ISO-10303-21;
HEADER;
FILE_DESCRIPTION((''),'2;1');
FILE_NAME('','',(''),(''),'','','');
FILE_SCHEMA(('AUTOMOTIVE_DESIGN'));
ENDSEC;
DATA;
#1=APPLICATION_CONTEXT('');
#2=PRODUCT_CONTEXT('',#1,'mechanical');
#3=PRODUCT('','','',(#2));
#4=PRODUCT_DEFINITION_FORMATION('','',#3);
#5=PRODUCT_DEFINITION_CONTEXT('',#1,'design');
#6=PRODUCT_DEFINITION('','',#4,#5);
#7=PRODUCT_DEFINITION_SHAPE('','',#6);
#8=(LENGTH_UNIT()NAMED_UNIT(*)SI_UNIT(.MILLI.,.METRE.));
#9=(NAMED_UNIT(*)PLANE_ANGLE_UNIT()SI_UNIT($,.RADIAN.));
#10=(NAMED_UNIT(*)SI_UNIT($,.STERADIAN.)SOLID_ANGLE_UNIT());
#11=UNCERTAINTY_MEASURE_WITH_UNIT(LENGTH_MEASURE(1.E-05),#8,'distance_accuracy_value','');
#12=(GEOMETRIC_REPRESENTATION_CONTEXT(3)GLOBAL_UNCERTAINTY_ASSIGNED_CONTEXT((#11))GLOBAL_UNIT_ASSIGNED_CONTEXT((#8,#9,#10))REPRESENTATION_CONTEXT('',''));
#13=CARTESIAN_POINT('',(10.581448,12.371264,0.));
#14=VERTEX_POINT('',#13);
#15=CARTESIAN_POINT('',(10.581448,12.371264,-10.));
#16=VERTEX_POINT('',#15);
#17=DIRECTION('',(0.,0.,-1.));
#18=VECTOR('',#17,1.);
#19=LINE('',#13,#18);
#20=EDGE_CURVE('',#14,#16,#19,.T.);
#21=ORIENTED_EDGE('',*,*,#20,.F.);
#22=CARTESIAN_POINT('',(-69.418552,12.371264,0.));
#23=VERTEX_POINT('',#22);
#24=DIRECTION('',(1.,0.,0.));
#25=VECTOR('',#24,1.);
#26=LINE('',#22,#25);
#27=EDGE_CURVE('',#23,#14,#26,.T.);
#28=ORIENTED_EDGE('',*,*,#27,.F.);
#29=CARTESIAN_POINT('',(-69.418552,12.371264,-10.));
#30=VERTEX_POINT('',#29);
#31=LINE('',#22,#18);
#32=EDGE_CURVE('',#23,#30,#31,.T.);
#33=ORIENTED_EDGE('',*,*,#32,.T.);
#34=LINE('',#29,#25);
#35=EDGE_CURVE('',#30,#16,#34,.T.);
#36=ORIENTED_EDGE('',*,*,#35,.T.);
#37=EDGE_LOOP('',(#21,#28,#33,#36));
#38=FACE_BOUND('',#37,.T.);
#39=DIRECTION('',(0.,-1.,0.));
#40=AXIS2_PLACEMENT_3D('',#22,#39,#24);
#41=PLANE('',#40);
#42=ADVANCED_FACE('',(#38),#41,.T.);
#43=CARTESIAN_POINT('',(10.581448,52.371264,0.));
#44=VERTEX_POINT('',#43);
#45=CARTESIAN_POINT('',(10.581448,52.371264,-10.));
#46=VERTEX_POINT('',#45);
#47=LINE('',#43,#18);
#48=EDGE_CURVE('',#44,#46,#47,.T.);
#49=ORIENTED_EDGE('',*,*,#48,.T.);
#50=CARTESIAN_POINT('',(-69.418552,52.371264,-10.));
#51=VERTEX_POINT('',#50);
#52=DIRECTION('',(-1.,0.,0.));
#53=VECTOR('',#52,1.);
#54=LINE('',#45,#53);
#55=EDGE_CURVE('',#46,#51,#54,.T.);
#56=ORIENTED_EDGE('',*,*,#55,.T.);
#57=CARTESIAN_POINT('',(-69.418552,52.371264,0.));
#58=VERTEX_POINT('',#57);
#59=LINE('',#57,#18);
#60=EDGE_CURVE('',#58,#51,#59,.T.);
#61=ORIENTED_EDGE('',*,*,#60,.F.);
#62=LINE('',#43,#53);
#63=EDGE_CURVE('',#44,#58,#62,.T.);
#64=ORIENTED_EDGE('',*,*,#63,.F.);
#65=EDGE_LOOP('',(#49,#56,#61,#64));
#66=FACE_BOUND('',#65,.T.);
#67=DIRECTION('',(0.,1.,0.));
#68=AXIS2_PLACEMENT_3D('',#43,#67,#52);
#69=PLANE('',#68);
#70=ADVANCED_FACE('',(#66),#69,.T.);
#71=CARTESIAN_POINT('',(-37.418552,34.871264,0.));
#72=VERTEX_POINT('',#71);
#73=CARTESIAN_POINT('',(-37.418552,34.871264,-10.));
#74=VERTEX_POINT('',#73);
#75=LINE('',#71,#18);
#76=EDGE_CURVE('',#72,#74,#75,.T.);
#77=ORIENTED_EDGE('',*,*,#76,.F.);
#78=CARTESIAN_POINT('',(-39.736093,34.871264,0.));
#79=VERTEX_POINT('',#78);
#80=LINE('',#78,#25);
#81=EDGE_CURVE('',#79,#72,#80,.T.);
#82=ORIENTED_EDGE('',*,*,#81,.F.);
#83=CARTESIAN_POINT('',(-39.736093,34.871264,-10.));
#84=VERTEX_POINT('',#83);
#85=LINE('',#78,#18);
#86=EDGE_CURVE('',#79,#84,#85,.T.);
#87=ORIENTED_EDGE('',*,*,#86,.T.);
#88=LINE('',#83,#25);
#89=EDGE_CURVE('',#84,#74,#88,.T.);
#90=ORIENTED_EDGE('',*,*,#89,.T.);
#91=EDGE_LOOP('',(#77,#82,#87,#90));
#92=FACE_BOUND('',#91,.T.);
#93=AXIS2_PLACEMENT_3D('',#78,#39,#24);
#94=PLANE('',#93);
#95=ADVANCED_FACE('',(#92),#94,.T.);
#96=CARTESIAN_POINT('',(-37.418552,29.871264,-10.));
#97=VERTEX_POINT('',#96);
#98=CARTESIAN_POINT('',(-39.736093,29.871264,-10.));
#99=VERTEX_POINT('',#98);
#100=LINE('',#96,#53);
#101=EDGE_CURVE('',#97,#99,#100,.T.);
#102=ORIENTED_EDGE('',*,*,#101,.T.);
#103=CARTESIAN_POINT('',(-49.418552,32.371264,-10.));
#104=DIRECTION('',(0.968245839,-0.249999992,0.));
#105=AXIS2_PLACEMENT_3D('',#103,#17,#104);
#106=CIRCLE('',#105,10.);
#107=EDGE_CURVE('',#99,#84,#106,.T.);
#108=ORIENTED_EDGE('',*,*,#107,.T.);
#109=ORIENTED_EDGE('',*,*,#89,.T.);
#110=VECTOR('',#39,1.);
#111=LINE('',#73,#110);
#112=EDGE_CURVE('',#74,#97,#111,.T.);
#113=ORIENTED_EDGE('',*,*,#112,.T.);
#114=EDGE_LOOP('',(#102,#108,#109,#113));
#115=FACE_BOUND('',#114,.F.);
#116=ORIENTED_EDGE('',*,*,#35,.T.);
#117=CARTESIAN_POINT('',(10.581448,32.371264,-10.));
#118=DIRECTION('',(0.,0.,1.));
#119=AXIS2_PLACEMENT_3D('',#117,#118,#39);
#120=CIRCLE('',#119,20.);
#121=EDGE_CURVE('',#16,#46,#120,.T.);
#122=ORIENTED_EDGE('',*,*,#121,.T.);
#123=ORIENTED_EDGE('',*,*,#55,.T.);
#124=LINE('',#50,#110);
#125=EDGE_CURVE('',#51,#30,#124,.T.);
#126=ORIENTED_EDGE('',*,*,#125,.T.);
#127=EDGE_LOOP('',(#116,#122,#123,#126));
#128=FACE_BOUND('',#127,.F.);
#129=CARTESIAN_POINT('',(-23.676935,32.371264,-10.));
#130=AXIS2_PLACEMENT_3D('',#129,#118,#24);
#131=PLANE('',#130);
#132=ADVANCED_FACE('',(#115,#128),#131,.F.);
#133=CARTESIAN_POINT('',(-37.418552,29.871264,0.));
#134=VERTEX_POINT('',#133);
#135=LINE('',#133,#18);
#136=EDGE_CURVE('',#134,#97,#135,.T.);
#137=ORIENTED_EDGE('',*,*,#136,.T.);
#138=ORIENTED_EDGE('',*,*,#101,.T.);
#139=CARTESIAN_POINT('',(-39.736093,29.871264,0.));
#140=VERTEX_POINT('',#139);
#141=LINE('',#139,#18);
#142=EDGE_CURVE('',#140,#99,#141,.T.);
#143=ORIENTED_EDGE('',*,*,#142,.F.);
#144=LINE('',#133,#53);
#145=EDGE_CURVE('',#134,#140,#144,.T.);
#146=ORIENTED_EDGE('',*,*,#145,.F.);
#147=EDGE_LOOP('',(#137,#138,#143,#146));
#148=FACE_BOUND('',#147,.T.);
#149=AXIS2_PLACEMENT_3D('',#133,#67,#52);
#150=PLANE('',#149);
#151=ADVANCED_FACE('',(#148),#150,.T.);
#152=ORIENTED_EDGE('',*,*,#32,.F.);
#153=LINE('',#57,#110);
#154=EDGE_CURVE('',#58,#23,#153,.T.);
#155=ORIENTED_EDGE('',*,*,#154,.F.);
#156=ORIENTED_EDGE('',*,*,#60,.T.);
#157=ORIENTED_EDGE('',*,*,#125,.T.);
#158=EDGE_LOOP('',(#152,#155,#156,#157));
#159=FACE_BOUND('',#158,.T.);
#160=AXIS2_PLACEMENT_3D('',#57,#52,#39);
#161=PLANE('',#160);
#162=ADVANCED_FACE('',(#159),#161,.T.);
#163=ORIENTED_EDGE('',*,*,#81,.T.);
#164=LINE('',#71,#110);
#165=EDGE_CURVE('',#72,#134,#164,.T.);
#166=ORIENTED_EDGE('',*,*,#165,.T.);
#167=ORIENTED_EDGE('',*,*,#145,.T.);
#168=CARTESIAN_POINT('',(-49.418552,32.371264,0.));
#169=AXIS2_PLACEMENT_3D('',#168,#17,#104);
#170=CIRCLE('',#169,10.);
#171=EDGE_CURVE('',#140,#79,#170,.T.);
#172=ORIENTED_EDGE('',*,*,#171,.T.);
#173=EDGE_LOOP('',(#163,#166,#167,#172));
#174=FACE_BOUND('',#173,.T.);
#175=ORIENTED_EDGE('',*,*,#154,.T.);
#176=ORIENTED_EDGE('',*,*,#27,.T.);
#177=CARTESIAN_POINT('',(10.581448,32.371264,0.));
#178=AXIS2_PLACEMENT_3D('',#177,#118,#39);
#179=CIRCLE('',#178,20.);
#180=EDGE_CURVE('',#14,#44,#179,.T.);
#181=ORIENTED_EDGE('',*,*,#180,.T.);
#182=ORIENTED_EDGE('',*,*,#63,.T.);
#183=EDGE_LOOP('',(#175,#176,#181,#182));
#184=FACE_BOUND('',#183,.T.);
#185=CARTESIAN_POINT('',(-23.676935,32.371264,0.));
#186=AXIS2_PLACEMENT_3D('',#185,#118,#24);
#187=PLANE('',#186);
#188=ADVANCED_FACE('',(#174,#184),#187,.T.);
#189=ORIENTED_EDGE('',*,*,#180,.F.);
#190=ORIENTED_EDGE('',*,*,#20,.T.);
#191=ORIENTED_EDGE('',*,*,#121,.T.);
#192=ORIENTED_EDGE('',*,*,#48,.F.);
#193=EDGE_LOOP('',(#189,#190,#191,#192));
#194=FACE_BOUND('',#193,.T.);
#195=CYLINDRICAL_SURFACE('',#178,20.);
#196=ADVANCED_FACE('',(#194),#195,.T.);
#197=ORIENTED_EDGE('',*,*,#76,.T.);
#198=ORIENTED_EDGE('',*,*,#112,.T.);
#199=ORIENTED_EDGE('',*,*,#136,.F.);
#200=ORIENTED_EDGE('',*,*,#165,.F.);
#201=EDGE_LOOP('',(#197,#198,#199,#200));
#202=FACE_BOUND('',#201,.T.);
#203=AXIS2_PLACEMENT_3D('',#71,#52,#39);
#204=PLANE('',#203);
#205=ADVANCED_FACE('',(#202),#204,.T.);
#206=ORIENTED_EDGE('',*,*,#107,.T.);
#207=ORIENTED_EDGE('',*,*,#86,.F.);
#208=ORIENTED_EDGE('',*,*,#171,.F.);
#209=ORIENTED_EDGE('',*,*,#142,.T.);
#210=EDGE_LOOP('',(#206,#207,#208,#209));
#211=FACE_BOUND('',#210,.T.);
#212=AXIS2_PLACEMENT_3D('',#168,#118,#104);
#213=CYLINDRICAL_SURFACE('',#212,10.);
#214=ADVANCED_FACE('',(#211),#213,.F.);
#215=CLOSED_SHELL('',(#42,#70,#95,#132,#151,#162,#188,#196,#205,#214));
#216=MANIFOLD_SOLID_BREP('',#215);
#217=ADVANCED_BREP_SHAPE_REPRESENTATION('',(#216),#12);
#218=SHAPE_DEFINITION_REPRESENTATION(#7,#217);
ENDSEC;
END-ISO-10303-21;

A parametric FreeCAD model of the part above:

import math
import FreeCAD as App
import Part
import Sketcher

V = App.Vector

doc = App.newDocument("Part")
body = doc.addObject("PartDesign::Body", "Body")

# Sketch on XY plane
sketch1 = doc.addObject("Sketcher::SketchObject", "Sketch")
body.addObject(sketch1)
sketch1.AttachmentSupport = (doc.XY_Plane, [""])
sketch1.MapMode = "FlatFace"
sketch1.addGeometry(Part.LineSegment(V(10.581448, 52.371264, 0), V(-69.418552, 52.371264, 0)), False)
sketch1.addGeometry(Part.LineSegment(V(-69.418552, 52.371264, 0), V(-69.418552, 12.371264, 0)), False)
sketch1.addGeometry(Part.LineSegment(V(-69.418552, 12.371264, 0), V(10.581448, 12.371264, 0)), False)
sketch1.addGeometry(Part.ArcOfCircle(Part.Circle(V(10.581448, 32.371264, 0), V(0, 0, 1), 20), math.radians(-90), math.radians(90)), False)
sketch1.addGeometry(Part.LineSegment(V(-37.418552, 29.871264, 0), V(-39.736093, 29.871264, 0)), False)
sketch1.addGeometry(Part.ArcOfCircle(Part.Circle(V(-49.418552, 32.371264, 0), V(0, 0, 1), 10), math.radians(14.477512), math.radians(345.522488)), False)
sketch1.addGeometry(Part.LineSegment(V(-39.736093, 34.871264, 0), V(-37.418552, 34.871264, 0)), False)
sketch1.addGeometry(Part.LineSegment(V(-37.418552, 34.871264, 0), V(-37.418552, 29.871264, 0)), False)
sketch1.addConstraint(Sketcher.Constraint("Coincident", 0, 2, 1, 1))
sketch1.addConstraint(Sketcher.Constraint("Coincident", 1, 2, 2, 1))
sketch1.addConstraint(Sketcher.Constraint("Tangent", 2, 2, 3, 1))
sketch1.addConstraint(Sketcher.Constraint("Tangent", 3, 2, 0, 1))
sketch1.addConstraint(Sketcher.Constraint("Coincident", 4, 2, 5, 2))
sketch1.addConstraint(Sketcher.Constraint("Coincident", 5, 1, 6, 1))
sketch1.addConstraint(Sketcher.Constraint("Coincident", 6, 2, 7, 1))
sketch1.addConstraint(Sketcher.Constraint("Coincident", 7, 2, 4, 1))
sketch1.addConstraint(Sketcher.Constraint("Horizontal", 0))
sketch1.addConstraint(Sketcher.Constraint("Vertical", 1))
sketch1.addConstraint(Sketcher.Constraint("Horizontal", 2))
sketch1.addConstraint(Sketcher.Constraint("Horizontal", 4))
sketch1.addConstraint(Sketcher.Constraint("Horizontal", 6))
sketch1.addConstraint(Sketcher.Constraint("Vertical", 7))
sketch1.addConstraint(Sketcher.Constraint("Horizontal", 3, 3, 5, 3))
sketch1.addConstraint(Sketcher.Constraint("Vertical", 4, 2, 5, 1))
sketch1.addConstraint(Sketcher.Constraint("Radius", 3, 20.0))
sketch1.addConstraint(Sketcher.Constraint("Radius", 5, 10.0))
sketch1.addConstraint(Sketcher.Constraint("DistanceX", 0, 2, 0, 1, 80.0))
sketch1.addConstraint(Sketcher.Constraint("DistanceY", 7, 2, 7, 1, 5.0))
sketch1.addConstraint(Sketcher.Constraint("DistanceX", 5, 3, 3, 3, 60.0))
sketch1.addConstraint(Sketcher.Constraint("DistanceX", 5, 3, 6, 2, 12.0))
sketch1.addConstraint(Sketcher.Constraint("DistanceX", 5, 3, -1, 1, 49.418552))
sketch1.addConstraint(Sketcher.Constraint("DistanceY", -1, 1, 3, 3, 32.371264))
pad1 = doc.addObject("PartDesign::Pad", "Pad")
body.addObject(pad1)
pad1.Profile = sketch1
pad1.Length = 10
pad1.Reversed = True

doc.recompute()
